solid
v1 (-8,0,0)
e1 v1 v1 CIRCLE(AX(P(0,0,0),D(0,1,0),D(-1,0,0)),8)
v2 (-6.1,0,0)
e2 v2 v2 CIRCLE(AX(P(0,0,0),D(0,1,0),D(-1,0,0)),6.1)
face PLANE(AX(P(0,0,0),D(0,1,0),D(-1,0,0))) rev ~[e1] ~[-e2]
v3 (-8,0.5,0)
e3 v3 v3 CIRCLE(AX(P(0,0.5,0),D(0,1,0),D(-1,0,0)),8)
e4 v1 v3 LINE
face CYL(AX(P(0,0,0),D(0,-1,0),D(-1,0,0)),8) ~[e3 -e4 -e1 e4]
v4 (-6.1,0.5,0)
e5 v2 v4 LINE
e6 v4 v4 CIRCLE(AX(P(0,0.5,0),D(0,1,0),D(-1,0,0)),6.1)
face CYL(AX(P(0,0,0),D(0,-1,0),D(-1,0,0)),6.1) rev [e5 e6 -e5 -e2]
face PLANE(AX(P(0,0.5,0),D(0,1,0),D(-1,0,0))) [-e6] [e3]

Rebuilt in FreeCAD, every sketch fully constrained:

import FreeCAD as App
import Part
import Sketcher
from FreeCAD import Vector
Q = App.Units.Quantity

doc = App.newDocument("Part")
body = doc.addObject("PartDesign::Body", "Body")

# Sketch on XZ plane
sketch1 = body.newObject("Sketcher::SketchObject", "Sketch")
sketch1.AttachmentSupport = (doc.getObject("XZ_Plane"), [""])
sketch1.MapMode = "FlatFace"
sketch1.addGeometry(Part.Circle(Vector(0, 0, 0), Vector(0, 0, 1), 8), False)
sketch1.addGeometry(Part.Circle(Vector(0, 0, 0), Vector(0, 0, 1), 6.1), False)
sketch1.addConstraint(Sketcher.Constraint("Coincident", 0, 3, -1, 1))
sketch1.addConstraint(Sketcher.Constraint("Coincident", 1, 3, -1, 1))
sketch1.addConstraint(Sketcher.Constraint("Diameter", 0, Q("16 mm")))
sketch1.addConstraint(Sketcher.Constraint("Diameter", 1, Q("12.2 mm")))
pad1 = body.newObject("PartDesign::Pad", "Pad")
pad1.Profile = sketch1
pad1.Length = 0.5
pad1.Reversed = True

doc.recompute()
